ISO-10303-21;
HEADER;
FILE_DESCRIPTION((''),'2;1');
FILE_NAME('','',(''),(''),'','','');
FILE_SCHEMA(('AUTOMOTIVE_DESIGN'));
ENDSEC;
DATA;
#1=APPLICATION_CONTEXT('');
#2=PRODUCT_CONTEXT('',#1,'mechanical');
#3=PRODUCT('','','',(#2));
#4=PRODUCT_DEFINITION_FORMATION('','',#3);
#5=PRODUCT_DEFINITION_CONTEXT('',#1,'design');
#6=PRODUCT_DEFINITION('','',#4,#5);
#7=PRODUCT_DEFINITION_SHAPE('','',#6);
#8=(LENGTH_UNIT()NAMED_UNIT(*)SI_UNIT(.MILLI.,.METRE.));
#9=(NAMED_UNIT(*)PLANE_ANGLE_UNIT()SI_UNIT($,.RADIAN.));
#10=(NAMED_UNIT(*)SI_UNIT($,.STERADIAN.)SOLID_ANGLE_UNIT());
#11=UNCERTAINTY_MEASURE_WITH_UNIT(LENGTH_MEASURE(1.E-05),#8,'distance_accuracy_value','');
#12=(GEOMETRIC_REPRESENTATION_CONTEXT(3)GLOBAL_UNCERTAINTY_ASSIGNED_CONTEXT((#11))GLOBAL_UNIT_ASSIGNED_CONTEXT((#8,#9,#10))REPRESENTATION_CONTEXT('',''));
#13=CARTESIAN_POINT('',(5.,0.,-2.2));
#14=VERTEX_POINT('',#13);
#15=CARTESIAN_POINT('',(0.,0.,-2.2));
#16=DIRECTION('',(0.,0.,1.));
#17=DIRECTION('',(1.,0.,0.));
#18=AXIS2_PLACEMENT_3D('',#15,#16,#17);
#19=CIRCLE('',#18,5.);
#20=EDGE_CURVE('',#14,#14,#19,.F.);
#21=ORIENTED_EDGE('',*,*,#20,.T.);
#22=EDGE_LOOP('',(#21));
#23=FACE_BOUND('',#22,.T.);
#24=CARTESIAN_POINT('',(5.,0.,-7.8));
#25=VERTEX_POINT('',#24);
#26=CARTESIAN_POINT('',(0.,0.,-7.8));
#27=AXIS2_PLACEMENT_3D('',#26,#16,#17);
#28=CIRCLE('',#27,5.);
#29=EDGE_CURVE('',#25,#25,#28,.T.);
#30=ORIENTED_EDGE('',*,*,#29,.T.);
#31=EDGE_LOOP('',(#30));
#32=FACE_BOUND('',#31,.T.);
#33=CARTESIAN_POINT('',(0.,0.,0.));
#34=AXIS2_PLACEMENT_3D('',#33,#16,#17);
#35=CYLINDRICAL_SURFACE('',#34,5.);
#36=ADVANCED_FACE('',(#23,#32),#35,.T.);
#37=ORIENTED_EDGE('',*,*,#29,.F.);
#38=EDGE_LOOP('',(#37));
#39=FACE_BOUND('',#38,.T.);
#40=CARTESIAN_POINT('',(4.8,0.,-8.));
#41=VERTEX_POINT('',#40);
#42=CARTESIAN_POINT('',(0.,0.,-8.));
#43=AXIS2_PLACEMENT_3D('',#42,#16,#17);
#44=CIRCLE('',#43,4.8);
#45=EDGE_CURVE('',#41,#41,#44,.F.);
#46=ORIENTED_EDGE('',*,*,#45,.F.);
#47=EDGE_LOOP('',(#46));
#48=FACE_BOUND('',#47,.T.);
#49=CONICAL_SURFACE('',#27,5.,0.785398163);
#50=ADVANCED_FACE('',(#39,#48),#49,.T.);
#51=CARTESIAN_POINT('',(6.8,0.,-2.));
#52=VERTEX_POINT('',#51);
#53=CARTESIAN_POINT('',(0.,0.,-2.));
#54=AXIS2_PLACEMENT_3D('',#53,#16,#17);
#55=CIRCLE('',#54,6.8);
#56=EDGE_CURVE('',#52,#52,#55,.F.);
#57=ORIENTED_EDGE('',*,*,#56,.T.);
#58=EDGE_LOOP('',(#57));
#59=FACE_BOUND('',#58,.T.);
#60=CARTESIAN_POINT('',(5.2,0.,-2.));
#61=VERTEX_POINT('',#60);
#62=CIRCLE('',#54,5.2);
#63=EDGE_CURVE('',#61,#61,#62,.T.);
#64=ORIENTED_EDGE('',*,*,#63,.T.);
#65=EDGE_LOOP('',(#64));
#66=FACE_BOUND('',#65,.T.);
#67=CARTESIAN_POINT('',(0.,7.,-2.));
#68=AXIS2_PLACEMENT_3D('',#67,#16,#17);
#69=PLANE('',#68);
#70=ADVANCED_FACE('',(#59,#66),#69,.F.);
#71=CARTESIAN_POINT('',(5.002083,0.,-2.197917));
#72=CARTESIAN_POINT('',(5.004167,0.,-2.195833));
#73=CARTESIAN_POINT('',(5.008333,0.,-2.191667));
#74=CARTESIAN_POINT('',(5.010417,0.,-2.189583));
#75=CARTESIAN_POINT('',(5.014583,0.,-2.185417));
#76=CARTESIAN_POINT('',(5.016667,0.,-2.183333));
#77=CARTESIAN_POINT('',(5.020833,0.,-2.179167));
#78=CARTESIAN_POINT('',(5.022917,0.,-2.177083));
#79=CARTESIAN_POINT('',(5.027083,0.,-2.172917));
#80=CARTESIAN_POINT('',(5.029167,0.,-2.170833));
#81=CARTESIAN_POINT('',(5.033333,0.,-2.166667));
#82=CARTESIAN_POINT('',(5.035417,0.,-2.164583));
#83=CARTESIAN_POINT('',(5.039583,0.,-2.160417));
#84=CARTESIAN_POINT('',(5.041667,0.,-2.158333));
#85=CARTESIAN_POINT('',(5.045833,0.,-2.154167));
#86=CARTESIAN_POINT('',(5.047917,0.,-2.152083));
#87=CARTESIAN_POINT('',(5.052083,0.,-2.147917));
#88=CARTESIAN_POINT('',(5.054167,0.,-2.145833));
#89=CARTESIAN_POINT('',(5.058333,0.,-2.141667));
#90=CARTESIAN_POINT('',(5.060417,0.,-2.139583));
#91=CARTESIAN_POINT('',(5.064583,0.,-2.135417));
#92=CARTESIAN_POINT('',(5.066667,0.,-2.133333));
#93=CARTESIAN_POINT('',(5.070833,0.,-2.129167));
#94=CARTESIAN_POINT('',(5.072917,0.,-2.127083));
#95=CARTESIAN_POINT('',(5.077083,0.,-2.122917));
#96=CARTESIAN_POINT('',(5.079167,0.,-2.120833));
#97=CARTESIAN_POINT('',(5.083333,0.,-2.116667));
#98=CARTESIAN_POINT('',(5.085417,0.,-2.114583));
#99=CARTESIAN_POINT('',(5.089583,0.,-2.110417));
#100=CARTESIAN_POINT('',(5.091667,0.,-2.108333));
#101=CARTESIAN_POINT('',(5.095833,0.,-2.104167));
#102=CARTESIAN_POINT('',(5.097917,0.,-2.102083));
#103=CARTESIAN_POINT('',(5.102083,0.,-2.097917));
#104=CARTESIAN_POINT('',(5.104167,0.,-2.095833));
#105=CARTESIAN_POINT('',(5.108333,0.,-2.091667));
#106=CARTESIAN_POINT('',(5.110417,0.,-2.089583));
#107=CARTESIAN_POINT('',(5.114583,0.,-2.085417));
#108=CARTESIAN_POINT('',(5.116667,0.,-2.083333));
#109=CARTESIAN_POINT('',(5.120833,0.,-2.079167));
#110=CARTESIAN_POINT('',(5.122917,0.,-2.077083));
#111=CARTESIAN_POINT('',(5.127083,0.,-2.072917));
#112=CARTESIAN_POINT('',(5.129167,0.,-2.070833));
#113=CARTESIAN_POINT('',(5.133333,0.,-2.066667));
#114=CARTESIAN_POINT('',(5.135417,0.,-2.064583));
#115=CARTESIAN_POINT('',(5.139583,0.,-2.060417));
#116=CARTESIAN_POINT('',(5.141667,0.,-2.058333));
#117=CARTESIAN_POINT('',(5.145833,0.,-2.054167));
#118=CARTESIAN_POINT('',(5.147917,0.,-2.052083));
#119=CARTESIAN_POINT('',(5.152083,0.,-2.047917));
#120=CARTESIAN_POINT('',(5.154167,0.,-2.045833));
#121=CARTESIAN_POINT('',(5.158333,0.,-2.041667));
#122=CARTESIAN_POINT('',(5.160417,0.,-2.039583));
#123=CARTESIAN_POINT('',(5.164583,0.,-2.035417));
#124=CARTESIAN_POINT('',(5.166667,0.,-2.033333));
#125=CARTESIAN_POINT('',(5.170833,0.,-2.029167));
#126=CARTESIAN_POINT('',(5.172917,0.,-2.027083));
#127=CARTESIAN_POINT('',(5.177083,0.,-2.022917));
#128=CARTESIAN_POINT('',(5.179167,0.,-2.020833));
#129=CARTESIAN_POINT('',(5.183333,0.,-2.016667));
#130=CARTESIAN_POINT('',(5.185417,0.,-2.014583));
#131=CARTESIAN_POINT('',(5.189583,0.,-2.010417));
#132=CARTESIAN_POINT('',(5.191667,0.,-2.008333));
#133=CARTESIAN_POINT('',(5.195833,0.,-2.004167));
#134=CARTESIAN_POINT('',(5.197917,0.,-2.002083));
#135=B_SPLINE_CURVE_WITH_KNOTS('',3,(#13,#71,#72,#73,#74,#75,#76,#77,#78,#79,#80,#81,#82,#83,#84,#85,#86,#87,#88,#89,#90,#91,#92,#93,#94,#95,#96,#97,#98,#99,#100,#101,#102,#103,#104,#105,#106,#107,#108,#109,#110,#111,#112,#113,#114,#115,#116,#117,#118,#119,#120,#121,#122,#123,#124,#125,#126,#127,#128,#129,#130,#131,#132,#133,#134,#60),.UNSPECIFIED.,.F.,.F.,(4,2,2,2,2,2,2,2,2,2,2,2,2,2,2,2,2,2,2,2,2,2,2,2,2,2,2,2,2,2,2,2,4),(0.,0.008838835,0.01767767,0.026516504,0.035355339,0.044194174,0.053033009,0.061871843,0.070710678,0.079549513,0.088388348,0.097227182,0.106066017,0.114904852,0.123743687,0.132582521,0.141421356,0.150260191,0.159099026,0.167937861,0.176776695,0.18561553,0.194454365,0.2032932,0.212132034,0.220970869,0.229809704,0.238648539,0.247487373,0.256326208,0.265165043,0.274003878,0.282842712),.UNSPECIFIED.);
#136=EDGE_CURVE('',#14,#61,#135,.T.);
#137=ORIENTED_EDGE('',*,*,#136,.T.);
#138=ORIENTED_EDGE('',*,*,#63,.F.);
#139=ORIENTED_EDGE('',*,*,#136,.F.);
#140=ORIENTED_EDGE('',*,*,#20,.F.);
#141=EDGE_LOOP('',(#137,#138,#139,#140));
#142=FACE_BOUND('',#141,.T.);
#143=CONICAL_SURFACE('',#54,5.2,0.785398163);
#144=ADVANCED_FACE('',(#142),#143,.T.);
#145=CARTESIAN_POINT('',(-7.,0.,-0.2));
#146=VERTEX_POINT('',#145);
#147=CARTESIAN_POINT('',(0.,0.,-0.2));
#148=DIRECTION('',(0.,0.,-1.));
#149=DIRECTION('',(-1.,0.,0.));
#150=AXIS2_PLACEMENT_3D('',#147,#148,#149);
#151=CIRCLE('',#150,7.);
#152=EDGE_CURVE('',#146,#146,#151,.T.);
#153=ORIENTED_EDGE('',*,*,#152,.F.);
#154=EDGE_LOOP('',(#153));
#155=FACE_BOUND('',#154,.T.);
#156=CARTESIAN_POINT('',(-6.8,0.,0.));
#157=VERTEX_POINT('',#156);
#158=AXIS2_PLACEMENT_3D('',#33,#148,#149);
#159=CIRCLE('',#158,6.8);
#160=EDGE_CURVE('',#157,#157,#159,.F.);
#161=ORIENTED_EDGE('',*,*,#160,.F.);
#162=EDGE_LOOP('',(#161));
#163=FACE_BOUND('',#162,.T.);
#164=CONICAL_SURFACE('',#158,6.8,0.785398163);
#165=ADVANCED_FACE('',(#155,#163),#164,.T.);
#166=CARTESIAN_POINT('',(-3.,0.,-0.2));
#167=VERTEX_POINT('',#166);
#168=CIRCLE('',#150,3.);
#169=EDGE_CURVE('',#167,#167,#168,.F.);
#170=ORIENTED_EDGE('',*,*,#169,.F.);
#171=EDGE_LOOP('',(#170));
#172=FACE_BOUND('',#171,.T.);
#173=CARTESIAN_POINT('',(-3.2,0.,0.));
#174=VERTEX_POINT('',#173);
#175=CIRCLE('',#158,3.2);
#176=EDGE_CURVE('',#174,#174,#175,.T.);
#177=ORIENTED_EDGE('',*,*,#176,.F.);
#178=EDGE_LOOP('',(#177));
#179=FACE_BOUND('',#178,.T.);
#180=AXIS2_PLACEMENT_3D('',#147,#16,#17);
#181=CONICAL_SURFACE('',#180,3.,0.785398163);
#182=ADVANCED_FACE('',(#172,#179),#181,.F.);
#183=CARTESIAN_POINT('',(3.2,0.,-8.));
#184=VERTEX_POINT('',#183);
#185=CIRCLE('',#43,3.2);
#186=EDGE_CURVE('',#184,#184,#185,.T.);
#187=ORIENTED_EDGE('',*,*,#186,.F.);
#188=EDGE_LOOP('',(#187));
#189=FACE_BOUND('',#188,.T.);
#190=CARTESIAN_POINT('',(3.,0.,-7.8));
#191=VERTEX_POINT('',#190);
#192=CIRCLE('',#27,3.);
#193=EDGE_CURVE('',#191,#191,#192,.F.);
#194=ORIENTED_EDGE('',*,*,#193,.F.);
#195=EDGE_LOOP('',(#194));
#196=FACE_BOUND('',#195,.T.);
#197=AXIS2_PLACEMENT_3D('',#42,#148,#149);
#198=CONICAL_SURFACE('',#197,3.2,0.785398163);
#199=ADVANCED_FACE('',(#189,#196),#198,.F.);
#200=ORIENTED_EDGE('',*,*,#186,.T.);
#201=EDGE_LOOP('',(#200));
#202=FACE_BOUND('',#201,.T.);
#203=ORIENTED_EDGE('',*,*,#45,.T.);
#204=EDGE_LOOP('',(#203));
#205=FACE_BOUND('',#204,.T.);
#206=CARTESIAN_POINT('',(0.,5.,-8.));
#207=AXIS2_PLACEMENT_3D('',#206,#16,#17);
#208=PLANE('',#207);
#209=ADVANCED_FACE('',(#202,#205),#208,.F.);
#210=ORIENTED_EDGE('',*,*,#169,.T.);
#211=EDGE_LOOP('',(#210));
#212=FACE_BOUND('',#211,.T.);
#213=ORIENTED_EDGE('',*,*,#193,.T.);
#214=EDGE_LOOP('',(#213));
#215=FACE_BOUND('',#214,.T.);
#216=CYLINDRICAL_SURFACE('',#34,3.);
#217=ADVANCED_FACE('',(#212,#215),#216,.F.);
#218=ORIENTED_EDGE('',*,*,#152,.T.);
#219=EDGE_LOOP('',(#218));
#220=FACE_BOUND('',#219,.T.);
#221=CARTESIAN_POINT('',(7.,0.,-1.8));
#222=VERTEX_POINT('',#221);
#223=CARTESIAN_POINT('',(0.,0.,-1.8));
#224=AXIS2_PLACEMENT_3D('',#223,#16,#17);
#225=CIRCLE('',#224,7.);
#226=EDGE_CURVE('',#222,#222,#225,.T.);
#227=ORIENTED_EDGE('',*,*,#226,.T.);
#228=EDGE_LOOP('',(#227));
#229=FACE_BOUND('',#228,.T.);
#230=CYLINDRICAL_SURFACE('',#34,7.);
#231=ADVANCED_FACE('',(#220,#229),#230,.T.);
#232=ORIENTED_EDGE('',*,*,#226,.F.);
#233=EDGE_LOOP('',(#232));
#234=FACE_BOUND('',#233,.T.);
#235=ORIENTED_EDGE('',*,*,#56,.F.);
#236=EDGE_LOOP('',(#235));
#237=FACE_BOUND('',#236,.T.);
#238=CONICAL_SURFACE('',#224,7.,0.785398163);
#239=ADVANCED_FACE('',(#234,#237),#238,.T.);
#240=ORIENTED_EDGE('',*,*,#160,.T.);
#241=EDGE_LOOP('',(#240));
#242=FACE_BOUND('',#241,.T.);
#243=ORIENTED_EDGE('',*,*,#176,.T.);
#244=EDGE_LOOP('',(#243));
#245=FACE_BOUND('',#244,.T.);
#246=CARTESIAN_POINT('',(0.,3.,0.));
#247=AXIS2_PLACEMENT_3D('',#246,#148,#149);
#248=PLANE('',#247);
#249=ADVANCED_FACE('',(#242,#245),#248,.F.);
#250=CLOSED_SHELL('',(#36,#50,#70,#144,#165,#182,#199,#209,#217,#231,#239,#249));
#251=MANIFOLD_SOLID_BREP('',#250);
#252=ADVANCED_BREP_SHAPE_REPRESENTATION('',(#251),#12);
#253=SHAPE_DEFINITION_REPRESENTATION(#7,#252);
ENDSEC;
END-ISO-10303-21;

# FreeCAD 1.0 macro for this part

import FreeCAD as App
import Part
import Sketcher
from FreeCAD import Vector
Q = App.Units.Quantity


def edges_at(feature, points):
    """Names of the edges that pass closest to the given points."""
    edges = feature.Shape.Edges
    near = lambda p: min(range(len(edges)), key=lambda i: edges[i].distToShape(Part.Vertex(*p))[0])
    return sorted({f"Edge{near(p) + 1}" for p in points})


def add_polygon(sketch, points):
    """Adds a closed chain of lines whose ends are joined by coincident constraints."""
    first, n = sketch.GeometryCount, len(points)
    for a, b in zip(points, points[1:] + points[:1]):
        sketch.addGeometry(Part.LineSegment(App.Vector(*a, 0), App.Vector(*b, 0)), False)
    for i in range(n):
        sketch.addConstraint(Sketcher.Constraint("Coincident", first + i, 2, first + (i + 1) % n, 1))

doc = App.newDocument("Part")
body = doc.addObject("PartDesign::Body", "Body")

# Sketch on YZ plane
sketch1 = doc.addObject("Sketcher::SketchObject", "Sketch")
body.addObject(sketch1)
sketch1.AttachmentSupport = (doc.YZ_Plane, [""])
sketch1.MapMode = "FlatFace"
add_polygon(sketch1, [(7, 0), (3, 0), (3, -8), (5, -8), (5, -2), (7, -2)])  # lines 0-5
sketch1.addConstraint(Sketcher.Constraint("Horizontal", 0))
sketch1.addConstraint(Sketcher.Constraint("Vertical", 1))
sketch1.addConstraint(Sketcher.Constraint("Horizontal", 2))
sketch1.addConstraint(Sketcher.Constraint("Vertical", 3))
sketch1.addConstraint(Sketcher.Constraint("Horizontal", 4))
sketch1.addConstraint(Sketcher.Constraint("Vertical", 5))
sketch1.addConstraint(Sketcher.Constraint("PointOnObject", 0, 2, -1))
sketch1.addConstraint(Sketcher.Constraint("Equal", 2, 4))
sketch1.addConstraint(Sketcher.Constraint("Equal", 4, 5))
sketch1.addConstraint(Sketcher.Constraint("DistanceX", 0, 2, 0, 1, Q("4 mm")))
sketch1.addConstraint(Sketcher.Constraint("DistanceY", 1, 2, 1, 1, Q("8 mm")))
sketch1.addConstraint(Sketcher.Constraint("DistanceX", -1, 1, 0, 2, Q("3 mm")))
revolution = doc.addObject("PartDesign::Revolution", "Revolution")
body.addObject(revolution)
revolution.Profile = sketch1
revolution.ReferenceAxis = (sketch1, ["V_Axis"])
revolution.Angle = 360
doc.recompute()

chamfer = doc.addObject("PartDesign::Chamfer", "Chamfer")
body.addObject(chamfer)
chamfer.Base = (revolution, edges_at(revolution, [
    (-3, 0, -8),
    (-5, 0, -8),
    (-5, 0, -2),
    (-7, 0, -2),
    (-7, 0, 0),
    (-3, 0, 0),
]))
chamfer.Size = 0.2

doc.recompute()
